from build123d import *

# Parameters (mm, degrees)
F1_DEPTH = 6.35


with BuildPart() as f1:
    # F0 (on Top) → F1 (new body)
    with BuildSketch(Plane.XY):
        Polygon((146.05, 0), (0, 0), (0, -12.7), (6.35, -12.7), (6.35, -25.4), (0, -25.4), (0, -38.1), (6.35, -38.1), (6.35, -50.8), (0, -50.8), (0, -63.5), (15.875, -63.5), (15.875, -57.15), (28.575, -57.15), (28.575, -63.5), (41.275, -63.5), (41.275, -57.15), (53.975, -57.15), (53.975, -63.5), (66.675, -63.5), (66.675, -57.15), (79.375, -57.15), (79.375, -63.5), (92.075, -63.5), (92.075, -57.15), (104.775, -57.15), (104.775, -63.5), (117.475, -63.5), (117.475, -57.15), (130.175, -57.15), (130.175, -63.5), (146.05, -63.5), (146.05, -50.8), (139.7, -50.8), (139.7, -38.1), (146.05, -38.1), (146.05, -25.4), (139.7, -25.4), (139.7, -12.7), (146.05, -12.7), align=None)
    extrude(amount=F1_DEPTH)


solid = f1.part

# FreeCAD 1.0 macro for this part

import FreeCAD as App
import Part
import Sketcher
from FreeCAD import Vector
Q = App.Units.Quantity

doc = App.newDocument("Part")
body = doc.addObject("PartDesign::Body", "Body")

sketch1 = body.newObject("Sketcher::SketchObject", "Sketch")
sketch1.AttachmentSupport = (doc.getObject("XY_Plane"), [""])
sketch1.MapMode = "FlatFace"
sketch1.addGeometry([
    Part.LineSegment(Vector(146, 0, 0), Vector(0, 0, 0)),
    Part.LineSegment(Vector(0, 0, 0), Vector(0, -13, 0)),
    Part.LineSegment(Vector(0, -13, 0), Vector(6, -13, 0)),
    Part.LineSegment(Vector(6, -13, 0), Vector(6, -25, 0)),
    Part.LineSegment(Vector(6, -25, 0), Vector(0, -25, 0)),
    Part.LineSegment(Vector(0, -25, 0), Vector(0, -38, 0)),
    Part.LineSegment(Vector(0, -38, 0), Vector(6, -38, 0)),
    Part.LineSegment(Vector(6, -38, 0), Vector(6, -51, 0)),
    Part.LineSegment(Vector(6, -51, 0), Vector(0, -51, 0)),
    Part.LineSegment(Vector(0, -51, 0), Vector(0, -64, 0)),
    Part.LineSegment(Vector(0, -64, 0), Vector(16, -64, 0)),
    Part.LineSegment(Vector(16, -64, 0), Vector(16, -57, 0)),
    Part.LineSegment(Vector(16, -57, 0), Vector(29, -57, 0)),
    Part.LineSegment(Vector(29, -57, 0), Vector(29, -64, 0)),
    Part.LineSegment(Vector(29, -64, 0), Vector(41, -64, 0)),
    Part.LineSegment(Vector(41, -64, 0), Vector(41, -57, 0)),
    Part.LineSegment(Vector(41, -57, 0), Vector(54, -57, 0)),
    Part.LineSegment(Vector(54, -57, 0), Vector(54, -64, 0)),
    Part.LineSegment(Vector(54, -64, 0), Vector(67, -64, 0)),
    Part.LineSegment(Vector(67, -64, 0), Vector(67, -57, 0)),
    Part.LineSegment(Vector(67, -57, 0), Vector(79, -57, 0)),
    Part.LineSegment(Vector(79, -57, 0), Vector(79, -64, 0)),
    Part.LineSegment(Vector(79, -64, 0), Vector(92, -64, 0)),
    Part.LineSegment(Vector(92, -64, 0), Vector(92, -57, 0)),
    Part.LineSegment(Vector(92, -57, 0), Vector(105, -57, 0)),
    Part.LineSegment(Vector(105, -57, 0), Vector(105, -64, 0)),
    Part.LineSegment(Vector(105, -64, 0), Vector(117, -64, 0)),
    Part.LineSegment(Vector(117, -64, 0), Vector(117, -57, 0)),
    Part.LineSegment(Vector(117, -57, 0), Vector(130, -57, 0)),
    Part.LineSegment(Vector(130, -57, 0), Vector(130, -64, 0)),
    Part.LineSegment(Vector(130, -64, 0), Vector(146, -64, 0)),
    Part.LineSegment(Vector(146, -64, 0), Vector(146, -51, 0)),
    Part.LineSegment(Vector(146, -51, 0), Vector(140, -51, 0)),
    Part.LineSegment(Vector(140, -51, 0), Vector(140, -38, 0)),
    Part.LineSegment(Vector(140, -38, 0), Vector(146, -38, 0)),
    Part.LineSegment(Vector(146, -38, 0), Vector(146, -25, 0)),
    Part.LineSegment(Vector(146, -25, 0), Vector(140, -25, 0)),
    Part.LineSegment(Vector(140, -25, 0), Vector(140, -13, 0)),
    Part.LineSegment(Vector(140, -13, 0), Vector(146, -13, 0)),
    Part.LineSegment(Vector(146, -13, 0), Vector(146, 0, 0)),
], False)
sketch1.addConstraint([
    Sketcher.Constraint("Coincident", 0, 2, 1, 1),
    Sketcher.Constraint("Coincident", 1, 2, 2, 1),
    Sketcher.Constraint("Coincident", 2, 2, 3, 1),
    Sketcher.Constraint("Coincident", 3, 2, 4, 1),
    Sketcher.Constraint("Coincident", 4, 2, 5, 1),
    Sketcher.Constraint("Coincident", 5, 2, 6, 1),
    Sketcher.Constraint("Coincident", 6, 2, 7, 1),
    Sketcher.Constraint("Coincident", 7, 2, 8, 1),
    Sketcher.Constraint("Coincident", 8, 2, 9, 1),
    Sketcher.Constraint("Coincident", 9, 2, 10, 1),
    Sketcher.Constraint("Coincident", 10, 2, 11, 1),
    Sketcher.Constraint("Coincident", 11, 2, 12, 1),
    Sketcher.Constraint("Coincident", 12, 2, 13, 1),
    Sketcher.Constraint("Coincident", 13, 2, 14, 1),
    Sketcher.Constraint("Coincident", 14, 2, 15, 1),
    Sketcher.Constraint("Coincident", 15, 2, 16, 1),
    Sketcher.Constraint("Coincident", 16, 2, 17, 1),
    Sketcher.Constraint("Coincident", 17, 2, 18, 1),
    Sketcher.Constraint("Coincident", 18, 2, 19, 1),
    Sketcher.Constraint("Coincident", 19, 2, 20, 1),
    Sketcher.Constraint("Coincident", 20, 2, 21, 1),
    Sketcher.Constraint("Coincident", 21, 2, 22, 1),
    Sketcher.Constraint("Coincident", 22, 2, 23, 1),
    Sketcher.Constraint("Coincident", 23, 2, 24, 1),
    Sketcher.Constraint("Coincident", 24, 2, 25, 1),
    Sketcher.Constraint("Coincident", 25, 2, 26, 1),
    Sketcher.Constraint("Coincident", 26, 2, 27, 1),
    Sketcher.Constraint("Coincident", 27, 2, 28, 1),
    Sketcher.Constraint("Coincident", 28, 2, 29, 1),
    Sketcher.Constraint("Coincident", 29, 2, 30, 1),
    Sketcher.Constraint("Coincident", 30, 2, 31, 1),
    Sketcher.Constraint("Coincident", 31, 2, 32, 1),
    Sketcher.Constraint("Coincident", 32, 2, 33, 1),
    Sketcher.Constraint("Coincident", 33, 2, 34, 1),
    Sketcher.Constraint("Coincident", 34, 2, 35, 1),
    Sketcher.Constraint("Coincident", 35, 2, 36, 1),
    Sketcher.Constraint("Coincident", 36, 2, 37, 1),
    Sketcher.Constraint("Coincident", 37, 2, 38, 1),
    Sketcher.Constraint("Coincident", 38, 2, 39, 1),
    Sketcher.Constraint("Coincident", 39, 2, 0, 1),
    Sketcher.Constraint("Horizontal", 0),
    Sketcher.Constraint("Vertical", 1),
    Sketcher.Constraint("Horizontal", 2),
    Sketcher.Constraint("Vertical", 3),
    Sketcher.Constraint("Horizontal", 4),
    Sketcher.Constraint("Vertical", 5),
    Sketcher.Constraint("Horizontal", 6),
    Sketcher.Constraint("Vertical", 7),
    Sketcher.Constraint("Horizontal", 8),
    Sketcher.Constraint("Vertical", 9),
    Sketcher.Constraint("Horizontal", 10),
    Sketcher.Constraint("Vertical", 11),
    Sketcher.Constraint("Horizontal", 12),
    Sketcher.Constraint("Vertical", 13),
    Sketcher.Constraint("Horizontal", 14),
    Sketcher.Constraint("Vertical", 15),
    Sketcher.Constraint("Horizontal", 16),
    Sketcher.Constraint("Vertical", 17),
    Sketcher.Constraint("Horizontal", 18),
    Sketcher.Constraint("Vertical", 19),
    Sketcher.Constraint("Horizontal", 20),
    Sketcher.Constraint("Vertical", 21),
    Sketcher.Constraint("Horizontal", 22),
    Sketcher.Constraint("Vertical", 23),
    Sketcher.Constraint("Horizontal", 24),
    Sketcher.Constraint("Vertical", 25),
    Sketcher.Constraint("Horizontal", 26),
    Sketcher.Constraint("Vertical", 27),
    Sketcher.Constraint("Horizontal", 28),
    Sketcher.Constraint("Vertical", 29),
    Sketcher.Constraint("Horizontal", 30),
    Sketcher.Constraint("Vertical", 31),
    Sketcher.Constraint("Horizontal", 32),
    Sketcher.Constraint("Vertical", 33),
    Sketcher.Constraint("Horizontal", 34),
    Sketcher.Constraint("Vertical", 35),
    Sketcher.Constraint("Horizontal", 36),
    Sketcher.Constraint("Vertical", 37),
    Sketcher.Constraint("Horizontal", 38),
    Sketcher.Constraint("Vertical", 39),
    Sketcher.Constraint("Coincident", 0, 2, -1, 1),
    Sketcher.Constraint("PointOnObject", 4, 2, -2),
    Sketcher.Constraint("PointOnObject", 8, 2, -2),
    Sketcher.Constraint("Horizontal", 10, 2, 13, 2),
    Sketcher.Constraint("Horizontal", 12, 2, 15, 2),
    Sketcher.Constraint("Horizontal", 14, 2, 17, 2),
    Sketcher.Constraint("Horizontal", 16, 2, 19, 2),
    Sketcher.Constraint("Horizontal", 18, 2, 21, 2),
    Sketcher.Constraint("Horizontal", 20, 2, 23, 2),
    Sketcher.Constraint("Horizontal", 22, 2, 25, 2),
    Sketcher.Constraint("Horizontal", 24, 2, 27, 2),
    Sketcher.Constraint("Horizontal", 26, 2, 29, 2),
    Sketcher.Constraint("Horizontal", 8, 2, 31, 2),
    Sketcher.Constraint("Horizontal", 6, 2, 33, 2),
    Sketcher.Constraint("Horizontal", 4, 2, 35, 2),
    Sketcher.Constraint("Horizontal", 2, 2, 37, 2),
    Sketcher.Constraint("Vertical", 3, 2, 6, 2),
    Sketcher.Constraint("Vertical", 31, 2, 34, 2),
    Sketcher.Constraint("Vertical", 33, 2, 36, 2),
    Sketcher.Constraint("Vertical", 35, 2, 38, 2),
    Sketcher.Constraint("Equal", 12, 14),
    Sketcher.Constraint("Equal", 14, 16),
    Sketcher.Constraint("Equal", 16, 18),
    Sketcher.Constraint("Equal", 18, 20),
    Sketcher.Constraint("Equal", 20, 22),
    Sketcher.Constraint("Equal", 22, 24),
    Sketcher.Constraint("Equal", 24, 26),
    Sketcher.Constraint("Equal", 26, 28),
    Sketcher.Constraint("Equal", 10, 30),
    Sketcher.Constraint("Equal", 8, 32),
    Sketcher.Constraint("Equal", 28, 1),
    Sketcher.Constraint("Equal", 1, 3),
    Sketcher.Constraint("Equal", 3, 5),
    Sketcher.Constraint("Equal", 5, 7),
    Sketcher.Constraint("Equal", 7, 9),
    Sketcher.Constraint("Equal", 38, 11),
    Sketcher.Constraint("DistanceX", 12, 1, 12, 2, Q("0.5 in")),
    Sketcher.Constraint("DistanceX", 0, 2, 0, 1, Q("5.75 in")),
    Sketcher.Constraint("DistanceX", 2, 1, 2, 2, Q("0.25 in")),
])
pad1 = body.newObject("PartDesign::Pad", "Pad")
pad1.Profile = sketch1
pad1.Length = Q("0.25 in")

doc.recompute()
